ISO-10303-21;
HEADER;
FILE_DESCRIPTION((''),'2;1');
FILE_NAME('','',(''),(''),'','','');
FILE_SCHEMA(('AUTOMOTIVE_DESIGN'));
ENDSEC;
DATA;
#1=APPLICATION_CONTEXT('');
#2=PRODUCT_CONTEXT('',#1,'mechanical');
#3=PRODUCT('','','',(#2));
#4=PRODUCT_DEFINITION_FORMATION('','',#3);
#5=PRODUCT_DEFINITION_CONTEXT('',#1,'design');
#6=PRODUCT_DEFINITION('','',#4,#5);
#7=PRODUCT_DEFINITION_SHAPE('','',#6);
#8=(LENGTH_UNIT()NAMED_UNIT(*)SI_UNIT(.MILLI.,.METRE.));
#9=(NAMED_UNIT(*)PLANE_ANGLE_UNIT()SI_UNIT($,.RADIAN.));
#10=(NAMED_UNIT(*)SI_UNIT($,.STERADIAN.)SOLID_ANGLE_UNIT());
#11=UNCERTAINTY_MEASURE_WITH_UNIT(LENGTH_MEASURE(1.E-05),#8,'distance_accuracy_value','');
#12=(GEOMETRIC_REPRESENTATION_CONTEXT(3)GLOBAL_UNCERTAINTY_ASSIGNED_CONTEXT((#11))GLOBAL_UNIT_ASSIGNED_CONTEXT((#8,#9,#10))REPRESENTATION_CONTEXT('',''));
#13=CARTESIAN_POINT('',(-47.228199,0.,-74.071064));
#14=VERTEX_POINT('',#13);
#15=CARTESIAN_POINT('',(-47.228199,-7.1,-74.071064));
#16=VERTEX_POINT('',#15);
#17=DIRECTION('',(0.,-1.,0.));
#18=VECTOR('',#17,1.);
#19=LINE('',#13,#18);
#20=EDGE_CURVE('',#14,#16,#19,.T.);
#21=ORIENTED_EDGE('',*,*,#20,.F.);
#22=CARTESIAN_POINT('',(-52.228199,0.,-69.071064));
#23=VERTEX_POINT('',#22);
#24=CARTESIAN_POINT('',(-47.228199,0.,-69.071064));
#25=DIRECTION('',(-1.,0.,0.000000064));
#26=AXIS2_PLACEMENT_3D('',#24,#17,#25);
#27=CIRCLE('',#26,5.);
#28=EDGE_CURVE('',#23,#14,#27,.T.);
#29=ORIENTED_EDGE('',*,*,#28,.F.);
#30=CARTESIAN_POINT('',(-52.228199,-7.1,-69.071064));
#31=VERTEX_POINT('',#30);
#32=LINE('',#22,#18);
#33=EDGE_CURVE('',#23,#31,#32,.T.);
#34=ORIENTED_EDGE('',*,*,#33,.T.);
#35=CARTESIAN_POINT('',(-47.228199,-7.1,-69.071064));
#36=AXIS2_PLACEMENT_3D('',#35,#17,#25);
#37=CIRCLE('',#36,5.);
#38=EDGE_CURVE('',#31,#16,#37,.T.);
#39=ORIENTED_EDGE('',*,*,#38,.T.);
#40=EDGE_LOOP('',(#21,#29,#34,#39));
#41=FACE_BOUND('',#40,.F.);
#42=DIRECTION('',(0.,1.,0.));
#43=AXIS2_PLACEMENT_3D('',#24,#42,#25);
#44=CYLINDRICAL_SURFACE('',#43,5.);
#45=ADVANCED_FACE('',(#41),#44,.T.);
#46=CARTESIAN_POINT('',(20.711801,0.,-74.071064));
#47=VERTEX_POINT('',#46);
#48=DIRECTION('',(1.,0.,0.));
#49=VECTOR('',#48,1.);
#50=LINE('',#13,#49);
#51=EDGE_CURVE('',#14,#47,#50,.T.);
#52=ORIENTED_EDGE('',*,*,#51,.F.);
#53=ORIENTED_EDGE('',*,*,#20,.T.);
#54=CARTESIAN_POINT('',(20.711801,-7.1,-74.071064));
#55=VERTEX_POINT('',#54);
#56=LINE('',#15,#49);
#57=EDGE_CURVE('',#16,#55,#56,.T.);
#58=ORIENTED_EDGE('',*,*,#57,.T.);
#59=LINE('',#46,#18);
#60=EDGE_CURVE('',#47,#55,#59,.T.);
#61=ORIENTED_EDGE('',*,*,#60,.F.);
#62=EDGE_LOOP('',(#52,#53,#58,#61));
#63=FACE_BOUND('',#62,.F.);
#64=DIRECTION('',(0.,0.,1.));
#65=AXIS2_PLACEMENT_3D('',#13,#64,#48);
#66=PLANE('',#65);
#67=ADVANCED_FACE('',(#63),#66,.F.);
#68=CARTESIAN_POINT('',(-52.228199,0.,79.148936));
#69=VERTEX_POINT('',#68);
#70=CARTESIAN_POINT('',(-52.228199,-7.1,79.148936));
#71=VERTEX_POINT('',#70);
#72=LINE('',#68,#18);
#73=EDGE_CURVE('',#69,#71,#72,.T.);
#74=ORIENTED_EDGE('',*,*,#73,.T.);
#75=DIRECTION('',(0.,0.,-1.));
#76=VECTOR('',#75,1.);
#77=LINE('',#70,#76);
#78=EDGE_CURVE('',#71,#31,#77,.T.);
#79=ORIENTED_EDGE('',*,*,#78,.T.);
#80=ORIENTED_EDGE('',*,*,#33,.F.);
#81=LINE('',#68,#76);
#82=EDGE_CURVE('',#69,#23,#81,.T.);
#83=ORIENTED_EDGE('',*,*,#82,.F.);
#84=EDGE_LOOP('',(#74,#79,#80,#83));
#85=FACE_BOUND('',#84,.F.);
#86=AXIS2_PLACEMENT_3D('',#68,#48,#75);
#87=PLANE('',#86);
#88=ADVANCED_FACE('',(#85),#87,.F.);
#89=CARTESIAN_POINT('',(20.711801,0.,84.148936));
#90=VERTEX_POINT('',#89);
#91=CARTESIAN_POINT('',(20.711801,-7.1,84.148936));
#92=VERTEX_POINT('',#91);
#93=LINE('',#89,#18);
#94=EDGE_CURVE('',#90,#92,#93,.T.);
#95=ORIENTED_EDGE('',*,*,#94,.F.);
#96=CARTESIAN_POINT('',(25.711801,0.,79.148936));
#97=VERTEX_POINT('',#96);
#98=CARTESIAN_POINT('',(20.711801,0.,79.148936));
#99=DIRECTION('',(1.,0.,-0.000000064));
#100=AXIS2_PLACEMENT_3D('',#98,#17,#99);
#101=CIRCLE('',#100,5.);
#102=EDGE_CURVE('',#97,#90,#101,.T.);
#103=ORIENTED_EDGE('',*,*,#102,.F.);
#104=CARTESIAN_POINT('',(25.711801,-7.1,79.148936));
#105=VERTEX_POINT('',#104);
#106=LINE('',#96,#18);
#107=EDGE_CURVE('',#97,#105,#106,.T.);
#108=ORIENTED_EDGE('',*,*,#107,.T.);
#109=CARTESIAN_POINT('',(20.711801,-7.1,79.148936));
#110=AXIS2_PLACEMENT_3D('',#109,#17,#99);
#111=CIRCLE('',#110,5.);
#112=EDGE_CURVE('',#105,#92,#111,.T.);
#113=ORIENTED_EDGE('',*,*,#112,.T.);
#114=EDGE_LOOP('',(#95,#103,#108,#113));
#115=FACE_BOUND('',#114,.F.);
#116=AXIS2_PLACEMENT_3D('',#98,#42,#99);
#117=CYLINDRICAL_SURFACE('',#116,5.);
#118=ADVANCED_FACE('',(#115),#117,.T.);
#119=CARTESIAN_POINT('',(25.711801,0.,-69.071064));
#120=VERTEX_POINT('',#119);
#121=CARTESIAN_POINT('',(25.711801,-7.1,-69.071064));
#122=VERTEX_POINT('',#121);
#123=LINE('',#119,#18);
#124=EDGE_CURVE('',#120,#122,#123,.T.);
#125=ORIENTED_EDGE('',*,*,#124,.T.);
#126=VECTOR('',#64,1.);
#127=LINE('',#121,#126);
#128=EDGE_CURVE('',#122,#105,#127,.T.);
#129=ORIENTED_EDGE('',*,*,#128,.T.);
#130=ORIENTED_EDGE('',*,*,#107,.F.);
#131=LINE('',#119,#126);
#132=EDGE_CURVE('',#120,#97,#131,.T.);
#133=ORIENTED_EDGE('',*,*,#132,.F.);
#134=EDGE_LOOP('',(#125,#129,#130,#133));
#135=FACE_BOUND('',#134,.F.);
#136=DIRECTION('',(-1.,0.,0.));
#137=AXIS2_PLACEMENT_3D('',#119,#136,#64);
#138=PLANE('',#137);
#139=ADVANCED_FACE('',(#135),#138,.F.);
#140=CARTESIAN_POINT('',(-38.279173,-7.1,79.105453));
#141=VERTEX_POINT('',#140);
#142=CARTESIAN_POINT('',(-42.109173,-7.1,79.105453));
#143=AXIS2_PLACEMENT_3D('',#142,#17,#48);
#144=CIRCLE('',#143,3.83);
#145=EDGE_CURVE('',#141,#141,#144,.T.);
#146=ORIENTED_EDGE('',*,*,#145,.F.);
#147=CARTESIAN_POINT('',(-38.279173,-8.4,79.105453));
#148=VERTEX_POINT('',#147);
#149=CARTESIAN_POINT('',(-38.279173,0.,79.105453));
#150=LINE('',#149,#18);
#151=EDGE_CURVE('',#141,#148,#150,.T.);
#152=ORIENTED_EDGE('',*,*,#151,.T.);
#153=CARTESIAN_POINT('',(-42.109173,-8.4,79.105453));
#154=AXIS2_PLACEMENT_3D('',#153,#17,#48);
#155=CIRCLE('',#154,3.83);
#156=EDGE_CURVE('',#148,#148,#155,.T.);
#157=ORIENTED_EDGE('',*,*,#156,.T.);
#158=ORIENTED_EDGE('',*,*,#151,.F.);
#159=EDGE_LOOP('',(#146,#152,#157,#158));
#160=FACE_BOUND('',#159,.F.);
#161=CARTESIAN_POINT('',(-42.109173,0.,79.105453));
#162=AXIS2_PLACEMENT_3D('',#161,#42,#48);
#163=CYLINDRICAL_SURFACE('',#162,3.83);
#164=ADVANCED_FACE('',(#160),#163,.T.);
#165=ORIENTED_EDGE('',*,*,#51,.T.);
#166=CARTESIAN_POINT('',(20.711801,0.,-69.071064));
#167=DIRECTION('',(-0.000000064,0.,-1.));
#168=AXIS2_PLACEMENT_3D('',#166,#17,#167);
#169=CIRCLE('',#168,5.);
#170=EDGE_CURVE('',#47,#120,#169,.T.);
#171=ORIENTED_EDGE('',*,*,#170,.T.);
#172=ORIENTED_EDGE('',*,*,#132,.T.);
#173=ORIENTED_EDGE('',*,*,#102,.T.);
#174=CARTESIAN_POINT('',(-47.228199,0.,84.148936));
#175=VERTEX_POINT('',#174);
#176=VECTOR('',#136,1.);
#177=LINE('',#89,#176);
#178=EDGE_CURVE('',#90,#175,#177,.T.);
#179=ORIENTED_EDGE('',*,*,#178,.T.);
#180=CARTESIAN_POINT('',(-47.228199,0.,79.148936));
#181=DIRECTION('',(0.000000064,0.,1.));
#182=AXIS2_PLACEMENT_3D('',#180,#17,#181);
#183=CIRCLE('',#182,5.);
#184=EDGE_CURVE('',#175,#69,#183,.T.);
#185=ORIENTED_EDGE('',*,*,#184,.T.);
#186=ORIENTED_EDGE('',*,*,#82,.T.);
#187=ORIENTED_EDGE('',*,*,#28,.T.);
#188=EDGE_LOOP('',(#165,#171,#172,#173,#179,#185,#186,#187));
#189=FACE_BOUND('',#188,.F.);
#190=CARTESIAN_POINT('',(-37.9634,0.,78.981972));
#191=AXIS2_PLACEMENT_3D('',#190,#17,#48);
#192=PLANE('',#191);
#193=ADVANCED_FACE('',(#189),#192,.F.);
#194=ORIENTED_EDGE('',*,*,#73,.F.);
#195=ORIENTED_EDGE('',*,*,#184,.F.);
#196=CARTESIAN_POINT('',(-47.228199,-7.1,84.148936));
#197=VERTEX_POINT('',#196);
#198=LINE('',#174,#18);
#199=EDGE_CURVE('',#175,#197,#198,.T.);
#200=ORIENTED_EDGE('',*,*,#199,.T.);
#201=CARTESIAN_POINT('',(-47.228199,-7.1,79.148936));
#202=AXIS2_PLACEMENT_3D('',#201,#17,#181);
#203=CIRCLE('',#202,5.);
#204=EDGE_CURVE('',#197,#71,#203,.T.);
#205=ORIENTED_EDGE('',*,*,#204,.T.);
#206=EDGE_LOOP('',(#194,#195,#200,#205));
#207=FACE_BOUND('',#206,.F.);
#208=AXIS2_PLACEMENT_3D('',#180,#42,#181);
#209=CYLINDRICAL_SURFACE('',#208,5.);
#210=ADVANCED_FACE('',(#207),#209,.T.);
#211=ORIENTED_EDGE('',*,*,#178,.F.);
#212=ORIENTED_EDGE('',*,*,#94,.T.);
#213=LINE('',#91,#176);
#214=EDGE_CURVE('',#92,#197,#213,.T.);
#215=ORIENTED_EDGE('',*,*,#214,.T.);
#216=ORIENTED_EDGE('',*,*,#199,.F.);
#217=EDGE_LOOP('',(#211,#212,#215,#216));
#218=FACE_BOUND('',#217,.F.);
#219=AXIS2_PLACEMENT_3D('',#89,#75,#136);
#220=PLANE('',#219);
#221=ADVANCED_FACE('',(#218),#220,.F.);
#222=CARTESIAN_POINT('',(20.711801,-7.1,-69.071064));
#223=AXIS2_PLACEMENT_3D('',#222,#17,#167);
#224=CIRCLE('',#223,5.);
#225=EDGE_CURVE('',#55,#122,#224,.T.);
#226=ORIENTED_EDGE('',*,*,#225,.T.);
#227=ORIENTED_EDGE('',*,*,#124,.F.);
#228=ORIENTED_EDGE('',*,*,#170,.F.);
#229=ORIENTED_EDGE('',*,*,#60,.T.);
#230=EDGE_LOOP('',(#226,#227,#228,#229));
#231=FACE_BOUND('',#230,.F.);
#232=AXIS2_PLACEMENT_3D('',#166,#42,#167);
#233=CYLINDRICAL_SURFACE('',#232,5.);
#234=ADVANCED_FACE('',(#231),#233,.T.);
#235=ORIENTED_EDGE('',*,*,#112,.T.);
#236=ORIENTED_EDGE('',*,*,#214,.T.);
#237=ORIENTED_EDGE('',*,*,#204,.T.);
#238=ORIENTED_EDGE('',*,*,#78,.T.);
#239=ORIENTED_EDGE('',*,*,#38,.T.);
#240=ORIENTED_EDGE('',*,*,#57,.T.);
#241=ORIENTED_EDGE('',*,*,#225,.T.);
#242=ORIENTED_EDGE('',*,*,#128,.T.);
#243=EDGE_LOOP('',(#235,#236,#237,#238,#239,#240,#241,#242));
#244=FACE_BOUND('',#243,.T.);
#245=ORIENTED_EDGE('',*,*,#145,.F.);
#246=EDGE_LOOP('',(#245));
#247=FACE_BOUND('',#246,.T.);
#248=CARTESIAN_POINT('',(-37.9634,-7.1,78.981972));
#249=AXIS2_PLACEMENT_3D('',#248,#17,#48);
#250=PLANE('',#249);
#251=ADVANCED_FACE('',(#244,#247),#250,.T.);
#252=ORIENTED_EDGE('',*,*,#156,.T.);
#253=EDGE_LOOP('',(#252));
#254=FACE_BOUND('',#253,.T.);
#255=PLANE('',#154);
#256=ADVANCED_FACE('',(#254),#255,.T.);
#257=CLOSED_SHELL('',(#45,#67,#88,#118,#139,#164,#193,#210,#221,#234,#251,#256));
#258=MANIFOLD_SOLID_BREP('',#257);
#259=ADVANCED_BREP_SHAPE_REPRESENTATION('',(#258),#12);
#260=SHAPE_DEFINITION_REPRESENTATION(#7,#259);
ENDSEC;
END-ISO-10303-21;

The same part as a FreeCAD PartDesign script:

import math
import FreeCAD as App
import Part
import Sketcher
from FreeCAD import Vector

doc = App.newDocument("Part")
body = doc.addObject("PartDesign::Body", "Body")

sketch1 = body.newObject("Sketcher::SketchObject", "Sketch")
sketch1.AttachmentSupport = (doc.getObject("XZ_Plane"), [""])
sketch1.MapMode = "FlatFace"
sketch1.addGeometry(Part.Circle(Vector(-42.1, 79.1, 0), Vector(0, 0, 1), 3.8), False)
sketch1.addConstraint([
    Sketcher.Constraint("Diameter", 0, 7.66),
    Sketcher.Constraint("DistanceX", 0, 3, -1, 1, 42.109173),
    Sketcher.Constraint("DistanceY", -1, 1, 0, 3, 79.105453),
])
pad1 = body.newObject("PartDesign::Pad", "Pad")
pad1.Profile = sketch1
pad1.Length = 8.4

sketch2 = body.newObject("Sketcher::SketchObject", "Sketch001")
sketch2.AttachmentSupport = (doc.getObject("XZ_Plane"), [""])
sketch2.MapMode = "FlatFace"
sketch2.addGeometry([
    Part.ArcOfCircle(Part.Circle(Vector(-47.2, 79.1, 0), Vector(0, 0, 1), 5), math.radians(90), math.radians(180)),
    Part.LineSegment(Vector(-52.2, 79.1, 0), Vector(-52.2, -69.1, 0)),
    Part.ArcOfCircle(Part.Circle(Vector(-47.2, -69.1, 0), Vector(0, 0, 1), 5), math.radians(180), math.radians(270)),
    Part.LineSegment(Vector(-47.2, -74.1, 0), Vector(20.7, -74.1, 0)),
    Part.ArcOfCircle(Part.Circle(Vector(20.7, -69.1, 0), Vector(0, 0, 1), 5), math.radians(-90), math.radians(0)),
    Part.LineSegment(Vector(25.7, -69.1, 0), Vector(25.7, 79.1, 0)),
    Part.ArcOfCircle(Part.Circle(Vector(20.7, 79.1, 0), Vector(0, 0, 1), 5), math.radians(0), math.radians(90)),
    Part.LineSegment(Vector(20.7, 84.1, 0), Vector(-47.2, 84.1, 0)),
    Part.Circle(Vector(-42.1, 79.1, 0), Vector(0, 0, 1), 3.8),
], False)
sketch2.addConstraint([
    Sketcher.Constraint("Tangent", 0, 2, 1, 1),
    Sketcher.Constraint("Tangent", 1, 2, 2, 1),
    Sketcher.Constraint("Tangent", 2, 2, 3, 1),
    Sketcher.Constraint("Tangent", 3, 2, 4, 1),
    Sketcher.Constraint("Tangent", 4, 2, 5, 1),
    Sketcher.Constraint("Tangent", 5, 2, 6, 1),
    Sketcher.Constraint("Tangent", 6, 2, 7, 1),
    Sketcher.Constraint("Tangent", 7, 2, 0, 1),
    Sketcher.Constraint("Vertical", 1),
    Sketcher.Constraint("Horizontal", 3),
    Sketcher.Constraint("Vertical", 5),
    Sketcher.Constraint("Horizontal", 7),
    Sketcher.Constraint("Equal", 0, 2),
    Sketcher.Constraint("Equal", 2, 4),
    Sketcher.Constraint("Equal", 4, 6),
    Sketcher.Constraint("Radius", 0, 5.0),
    Sketcher.Constraint("Diameter", 8, 7.66),
    Sketcher.Constraint("DistanceX", 3, 1, 3, 2, 67.94),
    Sketcher.Constraint("DistanceY", 1, 2, 1, 1, 148.22),
    Sketcher.Constraint("DistanceX", 0, 3, -1, 1, 47.228199),
    Sketcher.Constraint("DistanceY", -1, 1, 0, 3, 79.148936),
    Sketcher.Constraint("DistanceX", 8, 3, -1, 1, 42.109173),
    Sketcher.Constraint("DistanceY", -1, 1, 8, 3, 79.105453),
])
pad2 = body.newObject("PartDesign::Pad", "Pad001")
pad2.Profile = sketch2
pad2.Length = 7.1

doc.recompute()
